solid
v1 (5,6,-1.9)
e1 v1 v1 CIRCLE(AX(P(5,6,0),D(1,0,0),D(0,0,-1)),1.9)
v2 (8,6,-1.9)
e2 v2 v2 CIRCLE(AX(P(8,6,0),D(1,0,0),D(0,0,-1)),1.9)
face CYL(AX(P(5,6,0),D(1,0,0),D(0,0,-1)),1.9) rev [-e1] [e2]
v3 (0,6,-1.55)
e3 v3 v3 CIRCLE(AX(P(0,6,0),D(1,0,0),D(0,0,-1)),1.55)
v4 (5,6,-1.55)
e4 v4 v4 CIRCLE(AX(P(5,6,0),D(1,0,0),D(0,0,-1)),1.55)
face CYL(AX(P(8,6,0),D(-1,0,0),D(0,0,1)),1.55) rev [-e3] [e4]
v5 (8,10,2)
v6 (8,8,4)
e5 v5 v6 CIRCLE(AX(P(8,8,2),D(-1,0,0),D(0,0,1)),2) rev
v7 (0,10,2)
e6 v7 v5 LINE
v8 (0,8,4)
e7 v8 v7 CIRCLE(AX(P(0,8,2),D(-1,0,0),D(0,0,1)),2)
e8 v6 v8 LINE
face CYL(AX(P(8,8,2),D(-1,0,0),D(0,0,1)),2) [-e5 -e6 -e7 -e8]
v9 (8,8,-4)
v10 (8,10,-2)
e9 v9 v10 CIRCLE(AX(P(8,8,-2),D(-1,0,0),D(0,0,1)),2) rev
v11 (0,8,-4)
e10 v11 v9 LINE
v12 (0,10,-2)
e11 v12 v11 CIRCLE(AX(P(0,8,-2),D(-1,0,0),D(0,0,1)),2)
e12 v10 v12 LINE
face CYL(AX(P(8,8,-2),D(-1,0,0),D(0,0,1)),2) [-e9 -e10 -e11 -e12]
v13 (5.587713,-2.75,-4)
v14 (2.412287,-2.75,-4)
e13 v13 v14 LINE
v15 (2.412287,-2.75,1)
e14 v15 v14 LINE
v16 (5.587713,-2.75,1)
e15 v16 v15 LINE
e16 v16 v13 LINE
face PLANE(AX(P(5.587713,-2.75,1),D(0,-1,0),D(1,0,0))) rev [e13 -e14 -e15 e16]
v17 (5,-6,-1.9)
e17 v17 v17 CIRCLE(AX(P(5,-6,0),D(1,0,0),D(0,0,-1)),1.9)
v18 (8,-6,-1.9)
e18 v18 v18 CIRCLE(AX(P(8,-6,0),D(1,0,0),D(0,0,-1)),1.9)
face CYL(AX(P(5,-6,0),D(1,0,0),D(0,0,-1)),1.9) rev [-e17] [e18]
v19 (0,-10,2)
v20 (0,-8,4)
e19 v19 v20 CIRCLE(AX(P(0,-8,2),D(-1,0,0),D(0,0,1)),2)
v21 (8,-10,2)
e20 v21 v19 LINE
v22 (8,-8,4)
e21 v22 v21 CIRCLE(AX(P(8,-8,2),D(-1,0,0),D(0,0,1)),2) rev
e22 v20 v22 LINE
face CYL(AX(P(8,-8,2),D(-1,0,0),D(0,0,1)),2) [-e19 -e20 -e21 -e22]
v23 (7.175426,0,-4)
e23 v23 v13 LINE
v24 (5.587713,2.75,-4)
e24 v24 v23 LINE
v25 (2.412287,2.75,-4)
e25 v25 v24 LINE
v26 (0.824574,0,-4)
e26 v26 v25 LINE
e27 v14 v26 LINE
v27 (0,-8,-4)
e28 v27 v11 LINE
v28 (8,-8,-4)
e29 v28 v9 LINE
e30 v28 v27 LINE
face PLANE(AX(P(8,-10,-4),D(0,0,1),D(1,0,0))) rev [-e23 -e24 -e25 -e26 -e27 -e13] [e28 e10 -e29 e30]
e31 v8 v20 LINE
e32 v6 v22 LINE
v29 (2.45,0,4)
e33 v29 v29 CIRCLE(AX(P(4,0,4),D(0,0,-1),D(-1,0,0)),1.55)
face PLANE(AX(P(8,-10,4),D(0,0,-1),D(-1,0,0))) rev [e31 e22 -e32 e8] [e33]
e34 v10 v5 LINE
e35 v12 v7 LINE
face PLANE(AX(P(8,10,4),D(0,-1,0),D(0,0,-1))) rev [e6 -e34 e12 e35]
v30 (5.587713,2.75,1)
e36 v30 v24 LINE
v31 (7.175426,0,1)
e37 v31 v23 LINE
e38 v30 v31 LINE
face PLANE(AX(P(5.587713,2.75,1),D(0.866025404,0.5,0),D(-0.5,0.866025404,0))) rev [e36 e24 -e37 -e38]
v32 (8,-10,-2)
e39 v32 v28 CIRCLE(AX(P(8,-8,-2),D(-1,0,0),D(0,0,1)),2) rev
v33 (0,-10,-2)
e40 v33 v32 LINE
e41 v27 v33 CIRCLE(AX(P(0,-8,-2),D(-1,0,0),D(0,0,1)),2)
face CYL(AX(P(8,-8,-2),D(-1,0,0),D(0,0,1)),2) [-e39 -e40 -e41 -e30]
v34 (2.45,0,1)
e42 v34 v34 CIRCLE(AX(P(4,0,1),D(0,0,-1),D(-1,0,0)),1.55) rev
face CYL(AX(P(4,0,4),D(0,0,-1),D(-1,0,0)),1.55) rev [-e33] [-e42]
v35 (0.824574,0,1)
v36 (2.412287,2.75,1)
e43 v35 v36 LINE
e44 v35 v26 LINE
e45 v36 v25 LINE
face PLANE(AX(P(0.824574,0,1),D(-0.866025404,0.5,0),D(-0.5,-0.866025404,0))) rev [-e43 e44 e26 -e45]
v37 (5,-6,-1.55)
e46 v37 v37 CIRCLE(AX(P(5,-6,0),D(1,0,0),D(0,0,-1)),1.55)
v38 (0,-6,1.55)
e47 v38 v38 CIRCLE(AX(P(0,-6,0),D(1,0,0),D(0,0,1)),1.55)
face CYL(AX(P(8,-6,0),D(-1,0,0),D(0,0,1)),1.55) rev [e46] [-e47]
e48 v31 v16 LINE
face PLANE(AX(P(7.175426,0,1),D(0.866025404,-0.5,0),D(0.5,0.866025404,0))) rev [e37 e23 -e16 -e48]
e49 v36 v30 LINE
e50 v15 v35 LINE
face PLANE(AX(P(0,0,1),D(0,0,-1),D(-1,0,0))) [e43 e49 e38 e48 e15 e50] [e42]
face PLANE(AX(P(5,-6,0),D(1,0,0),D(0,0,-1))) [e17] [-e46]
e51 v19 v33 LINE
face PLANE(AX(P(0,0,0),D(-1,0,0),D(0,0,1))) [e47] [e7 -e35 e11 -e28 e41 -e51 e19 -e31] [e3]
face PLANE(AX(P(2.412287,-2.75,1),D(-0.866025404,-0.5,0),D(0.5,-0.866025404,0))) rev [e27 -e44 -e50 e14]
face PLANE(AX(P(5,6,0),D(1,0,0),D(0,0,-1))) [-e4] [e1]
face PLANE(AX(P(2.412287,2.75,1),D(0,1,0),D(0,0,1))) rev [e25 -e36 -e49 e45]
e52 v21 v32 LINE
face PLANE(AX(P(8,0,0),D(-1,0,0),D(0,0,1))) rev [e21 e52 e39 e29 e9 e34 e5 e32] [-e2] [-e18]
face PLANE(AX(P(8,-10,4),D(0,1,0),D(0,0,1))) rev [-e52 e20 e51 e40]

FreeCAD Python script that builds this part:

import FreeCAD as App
import Part
import Sketcher

V = App.Vector
Q = App.Units.Quantity


def edges_at(feature, points):
    """Names of the edges that pass closest to the given points."""
    edges = feature.Shape.Edges
    near = lambda p: min(range(len(edges)), key=lambda i: edges[i].distToShape(Part.Vertex(*p))[0])
    return sorted({f"Edge{near(p) + 1}" for p in points})


def add_polygon(sketch, points):
    """Adds a closed chain of lines whose ends are joined by coincident constraints."""
    first, n = sketch.GeometryCount, len(points)
    for a, b in zip(points, points[1:] + points[:1]):
        sketch.addGeometry(Part.LineSegment(App.Vector(*a, 0), App.Vector(*b, 0)), False)
    for i in range(n):
        sketch.addConstraint(Sketcher.Constraint("Coincident", first + i, 2, first + (i + 1) % n, 1))

doc = App.newDocument("Part")
body = doc.addObject("PartDesign::Body", "Body")

sketch1 = body.newObject("Sketcher::SketchObject", "Sketch")
sketch1.AttachmentSupport = (doc.getObject("YZ_Plane"), [""])
sketch1.MapMode = "FlatFace"
add_polygon(sketch1, [(10, 4), (-10, 4), (-10, -4), (10, -4)])
sketch1.addGeometry(Part.Circle(V(-6, 0, 0), V(0, 0, 1), 1.6), False)
sketch1.addGeometry(Part.Circle(V(6, 0, 0), V(0, 0, 1), 1.6), False)
sketch1.addConstraint(Sketcher.Constraint("Horizontal", 0))
sketch1.addConstraint(Sketcher.Constraint("Vertical", 1))
sketch1.addConstraint(Sketcher.Constraint("Horizontal", 2))
sketch1.addConstraint(Sketcher.Constraint("Vertical", 3))
sketch1.addConstraint(Sketcher.Constraint("Equal", 4, 5))
sketch1.addConstraint(Sketcher.Constraint("Symmetric", 4, 3, 5, 3, -1, 1))
sketch1.addConstraint(Sketcher.Constraint("Symmetric", 0, 2, 2, 2, -1, 1))
sketch1.addConstraint(Sketcher.Constraint("PointOnObject", 4, 3, -1))
sketch1.addConstraint(Sketcher.Constraint("Diameter", 4, 3.1))
sketch1.addConstraint(Sketcher.Constraint("DistanceX", 0, 2, 0, 1, 20.0))
sketch1.addConstraint(Sketcher.Constraint("DistanceY", 1, 2, 1, 1, 8.0))
sketch1.addConstraint(Sketcher.Constraint("DistanceX", 4, 3, -1, 1, 6.0))
pad1 = body.newObject("PartDesign::Pad", "Pad")
pad1.Profile = sketch1
pad1.Length = 8

sketch2 = body.newObject("Sketcher::SketchObject", "Sketch001")
sketch2.AttachmentSupport = (doc.getObject("XY_Plane"), [""])
sketch2.MapMode = "FlatFace"
sketch2.AttachmentOffset = App.Placement(V(0, 0, -4), App.Rotation())
sketch2.addGeometry(Part.Circle(V(4, 0, 0), V(0, 0, 1), 1.6), False)
sketch2.addConstraint(Sketcher.Constraint("PointOnObject", 0, 3, -1))
sketch2.addConstraint(Sketcher.Constraint("Diameter", 0, 3.1))
sketch2.addConstraint(Sketcher.Constraint("DistanceX", -1, 1, 0, 3, 4.0))
pocket1 = body.newObject("PartDesign::Pocket", "Pocket")
pocket1.Profile = sketch2
pocket1.Type = "ThroughAll"
pocket1.Reversed = True

sketch3 = body.newObject("Sketcher::SketchObject", "Sketch002")
sketch3.AttachmentSupport = (doc.getObject("YZ_Plane"), [""])
sketch3.MapMode = "FlatFace"
sketch3.AttachmentOffset = App.Placement(V(0, 0, 8), App.Rotation())
sketch3.addGeometry(Part.Circle(V(6, 0, 0), V(0, 0, 1), 1.9), False)
sketch3.addGeometry(Part.Circle(V(-6, 0, 0), V(0, 0, 1), 1.9), False)
sketch3.addConstraint(Sketcher.Constraint("Equal", 0, 1))
sketch3.addConstraint(Sketcher.Constraint("Symmetric", 0, 3, 1, 3, -1, 1))
sketch3.addConstraint(Sketcher.Constraint("PointOnObject", 0, 3, -1))
sketch3.addConstraint(Sketcher.Constraint("Diameter", 0, 3.8))
sketch3.addConstraint(Sketcher.Constraint("DistanceX", -1, 1, 0, 3, 6.0))
pocket2 = body.newObject("PartDesign::Pocket", "Pocket001")
pocket2.Profile = sketch3
pocket2.Length = 3

sketch4 = body.newObject("Sketcher::SketchObject", "Sketch003")
sketch4.AttachmentSupport = (doc.getObject("XY_Plane"), [""])
sketch4.MapMode = "FlatFace"
sketch4.AttachmentOffset = App.Placement(V(0, 0, -4), App.Rotation())
add_polygon(sketch4, [(5.6, 2.8), (7.2, 0), (5.6, -2.8), (2.4, -2.8), (0.8, 0), (2.4, 2.8)])
sketch4.addConstraint(Sketcher.Constraint("Horizontal", 2))
sketch4.addConstraint(Sketcher.Constraint("Horizontal", 5))
sketch4.addConstraint(Sketcher.Constraint("Symmetric", 2, 2, 4, 2, -1))
sketch4.addConstraint(Sketcher.Constraint("PointOnObject", 0, 2, -1))
sketch4.addConstraint(Sketcher.Constraint("PointOnObject", 3, 2, -1))
sketch4.addConstraint(Sketcher.Constraint("Parallel", 0, 3))
sketch4.addConstraint(Sketcher.Constraint("Parallel", 1, 4))
sketch4.addConstraint(Sketcher.Constraint("Angle", 0, Q("-60 deg")))
sketch4.addConstraint(Sketcher.Constraint("DistanceY", 2, 2, 4, 2, 5.5))
sketch4.addConstraint(Sketcher.Constraint("DistanceX", 2, 2, 2, 1, 3.175426))
sketch4.addConstraint(Sketcher.Constraint("DistanceX", -1, 1, 0, 2, 7.175426))
pocket3 = body.newObject("PartDesign::Pocket", "Pocket002")
pocket3.Profile = sketch4
pocket3.Length = 5
pocket3.Reversed = True
doc.recompute()

fillet = body.newObject("PartDesign::Fillet", "Fillet")
fillet.Base = (pocket3, edges_at(pocket3, [
    (4, -10, -4),
    (4, -10, 4),
    (4, 10, 4),
    (4, 10, -4),
]))
fillet.Radius = 2

doc.recompute()
